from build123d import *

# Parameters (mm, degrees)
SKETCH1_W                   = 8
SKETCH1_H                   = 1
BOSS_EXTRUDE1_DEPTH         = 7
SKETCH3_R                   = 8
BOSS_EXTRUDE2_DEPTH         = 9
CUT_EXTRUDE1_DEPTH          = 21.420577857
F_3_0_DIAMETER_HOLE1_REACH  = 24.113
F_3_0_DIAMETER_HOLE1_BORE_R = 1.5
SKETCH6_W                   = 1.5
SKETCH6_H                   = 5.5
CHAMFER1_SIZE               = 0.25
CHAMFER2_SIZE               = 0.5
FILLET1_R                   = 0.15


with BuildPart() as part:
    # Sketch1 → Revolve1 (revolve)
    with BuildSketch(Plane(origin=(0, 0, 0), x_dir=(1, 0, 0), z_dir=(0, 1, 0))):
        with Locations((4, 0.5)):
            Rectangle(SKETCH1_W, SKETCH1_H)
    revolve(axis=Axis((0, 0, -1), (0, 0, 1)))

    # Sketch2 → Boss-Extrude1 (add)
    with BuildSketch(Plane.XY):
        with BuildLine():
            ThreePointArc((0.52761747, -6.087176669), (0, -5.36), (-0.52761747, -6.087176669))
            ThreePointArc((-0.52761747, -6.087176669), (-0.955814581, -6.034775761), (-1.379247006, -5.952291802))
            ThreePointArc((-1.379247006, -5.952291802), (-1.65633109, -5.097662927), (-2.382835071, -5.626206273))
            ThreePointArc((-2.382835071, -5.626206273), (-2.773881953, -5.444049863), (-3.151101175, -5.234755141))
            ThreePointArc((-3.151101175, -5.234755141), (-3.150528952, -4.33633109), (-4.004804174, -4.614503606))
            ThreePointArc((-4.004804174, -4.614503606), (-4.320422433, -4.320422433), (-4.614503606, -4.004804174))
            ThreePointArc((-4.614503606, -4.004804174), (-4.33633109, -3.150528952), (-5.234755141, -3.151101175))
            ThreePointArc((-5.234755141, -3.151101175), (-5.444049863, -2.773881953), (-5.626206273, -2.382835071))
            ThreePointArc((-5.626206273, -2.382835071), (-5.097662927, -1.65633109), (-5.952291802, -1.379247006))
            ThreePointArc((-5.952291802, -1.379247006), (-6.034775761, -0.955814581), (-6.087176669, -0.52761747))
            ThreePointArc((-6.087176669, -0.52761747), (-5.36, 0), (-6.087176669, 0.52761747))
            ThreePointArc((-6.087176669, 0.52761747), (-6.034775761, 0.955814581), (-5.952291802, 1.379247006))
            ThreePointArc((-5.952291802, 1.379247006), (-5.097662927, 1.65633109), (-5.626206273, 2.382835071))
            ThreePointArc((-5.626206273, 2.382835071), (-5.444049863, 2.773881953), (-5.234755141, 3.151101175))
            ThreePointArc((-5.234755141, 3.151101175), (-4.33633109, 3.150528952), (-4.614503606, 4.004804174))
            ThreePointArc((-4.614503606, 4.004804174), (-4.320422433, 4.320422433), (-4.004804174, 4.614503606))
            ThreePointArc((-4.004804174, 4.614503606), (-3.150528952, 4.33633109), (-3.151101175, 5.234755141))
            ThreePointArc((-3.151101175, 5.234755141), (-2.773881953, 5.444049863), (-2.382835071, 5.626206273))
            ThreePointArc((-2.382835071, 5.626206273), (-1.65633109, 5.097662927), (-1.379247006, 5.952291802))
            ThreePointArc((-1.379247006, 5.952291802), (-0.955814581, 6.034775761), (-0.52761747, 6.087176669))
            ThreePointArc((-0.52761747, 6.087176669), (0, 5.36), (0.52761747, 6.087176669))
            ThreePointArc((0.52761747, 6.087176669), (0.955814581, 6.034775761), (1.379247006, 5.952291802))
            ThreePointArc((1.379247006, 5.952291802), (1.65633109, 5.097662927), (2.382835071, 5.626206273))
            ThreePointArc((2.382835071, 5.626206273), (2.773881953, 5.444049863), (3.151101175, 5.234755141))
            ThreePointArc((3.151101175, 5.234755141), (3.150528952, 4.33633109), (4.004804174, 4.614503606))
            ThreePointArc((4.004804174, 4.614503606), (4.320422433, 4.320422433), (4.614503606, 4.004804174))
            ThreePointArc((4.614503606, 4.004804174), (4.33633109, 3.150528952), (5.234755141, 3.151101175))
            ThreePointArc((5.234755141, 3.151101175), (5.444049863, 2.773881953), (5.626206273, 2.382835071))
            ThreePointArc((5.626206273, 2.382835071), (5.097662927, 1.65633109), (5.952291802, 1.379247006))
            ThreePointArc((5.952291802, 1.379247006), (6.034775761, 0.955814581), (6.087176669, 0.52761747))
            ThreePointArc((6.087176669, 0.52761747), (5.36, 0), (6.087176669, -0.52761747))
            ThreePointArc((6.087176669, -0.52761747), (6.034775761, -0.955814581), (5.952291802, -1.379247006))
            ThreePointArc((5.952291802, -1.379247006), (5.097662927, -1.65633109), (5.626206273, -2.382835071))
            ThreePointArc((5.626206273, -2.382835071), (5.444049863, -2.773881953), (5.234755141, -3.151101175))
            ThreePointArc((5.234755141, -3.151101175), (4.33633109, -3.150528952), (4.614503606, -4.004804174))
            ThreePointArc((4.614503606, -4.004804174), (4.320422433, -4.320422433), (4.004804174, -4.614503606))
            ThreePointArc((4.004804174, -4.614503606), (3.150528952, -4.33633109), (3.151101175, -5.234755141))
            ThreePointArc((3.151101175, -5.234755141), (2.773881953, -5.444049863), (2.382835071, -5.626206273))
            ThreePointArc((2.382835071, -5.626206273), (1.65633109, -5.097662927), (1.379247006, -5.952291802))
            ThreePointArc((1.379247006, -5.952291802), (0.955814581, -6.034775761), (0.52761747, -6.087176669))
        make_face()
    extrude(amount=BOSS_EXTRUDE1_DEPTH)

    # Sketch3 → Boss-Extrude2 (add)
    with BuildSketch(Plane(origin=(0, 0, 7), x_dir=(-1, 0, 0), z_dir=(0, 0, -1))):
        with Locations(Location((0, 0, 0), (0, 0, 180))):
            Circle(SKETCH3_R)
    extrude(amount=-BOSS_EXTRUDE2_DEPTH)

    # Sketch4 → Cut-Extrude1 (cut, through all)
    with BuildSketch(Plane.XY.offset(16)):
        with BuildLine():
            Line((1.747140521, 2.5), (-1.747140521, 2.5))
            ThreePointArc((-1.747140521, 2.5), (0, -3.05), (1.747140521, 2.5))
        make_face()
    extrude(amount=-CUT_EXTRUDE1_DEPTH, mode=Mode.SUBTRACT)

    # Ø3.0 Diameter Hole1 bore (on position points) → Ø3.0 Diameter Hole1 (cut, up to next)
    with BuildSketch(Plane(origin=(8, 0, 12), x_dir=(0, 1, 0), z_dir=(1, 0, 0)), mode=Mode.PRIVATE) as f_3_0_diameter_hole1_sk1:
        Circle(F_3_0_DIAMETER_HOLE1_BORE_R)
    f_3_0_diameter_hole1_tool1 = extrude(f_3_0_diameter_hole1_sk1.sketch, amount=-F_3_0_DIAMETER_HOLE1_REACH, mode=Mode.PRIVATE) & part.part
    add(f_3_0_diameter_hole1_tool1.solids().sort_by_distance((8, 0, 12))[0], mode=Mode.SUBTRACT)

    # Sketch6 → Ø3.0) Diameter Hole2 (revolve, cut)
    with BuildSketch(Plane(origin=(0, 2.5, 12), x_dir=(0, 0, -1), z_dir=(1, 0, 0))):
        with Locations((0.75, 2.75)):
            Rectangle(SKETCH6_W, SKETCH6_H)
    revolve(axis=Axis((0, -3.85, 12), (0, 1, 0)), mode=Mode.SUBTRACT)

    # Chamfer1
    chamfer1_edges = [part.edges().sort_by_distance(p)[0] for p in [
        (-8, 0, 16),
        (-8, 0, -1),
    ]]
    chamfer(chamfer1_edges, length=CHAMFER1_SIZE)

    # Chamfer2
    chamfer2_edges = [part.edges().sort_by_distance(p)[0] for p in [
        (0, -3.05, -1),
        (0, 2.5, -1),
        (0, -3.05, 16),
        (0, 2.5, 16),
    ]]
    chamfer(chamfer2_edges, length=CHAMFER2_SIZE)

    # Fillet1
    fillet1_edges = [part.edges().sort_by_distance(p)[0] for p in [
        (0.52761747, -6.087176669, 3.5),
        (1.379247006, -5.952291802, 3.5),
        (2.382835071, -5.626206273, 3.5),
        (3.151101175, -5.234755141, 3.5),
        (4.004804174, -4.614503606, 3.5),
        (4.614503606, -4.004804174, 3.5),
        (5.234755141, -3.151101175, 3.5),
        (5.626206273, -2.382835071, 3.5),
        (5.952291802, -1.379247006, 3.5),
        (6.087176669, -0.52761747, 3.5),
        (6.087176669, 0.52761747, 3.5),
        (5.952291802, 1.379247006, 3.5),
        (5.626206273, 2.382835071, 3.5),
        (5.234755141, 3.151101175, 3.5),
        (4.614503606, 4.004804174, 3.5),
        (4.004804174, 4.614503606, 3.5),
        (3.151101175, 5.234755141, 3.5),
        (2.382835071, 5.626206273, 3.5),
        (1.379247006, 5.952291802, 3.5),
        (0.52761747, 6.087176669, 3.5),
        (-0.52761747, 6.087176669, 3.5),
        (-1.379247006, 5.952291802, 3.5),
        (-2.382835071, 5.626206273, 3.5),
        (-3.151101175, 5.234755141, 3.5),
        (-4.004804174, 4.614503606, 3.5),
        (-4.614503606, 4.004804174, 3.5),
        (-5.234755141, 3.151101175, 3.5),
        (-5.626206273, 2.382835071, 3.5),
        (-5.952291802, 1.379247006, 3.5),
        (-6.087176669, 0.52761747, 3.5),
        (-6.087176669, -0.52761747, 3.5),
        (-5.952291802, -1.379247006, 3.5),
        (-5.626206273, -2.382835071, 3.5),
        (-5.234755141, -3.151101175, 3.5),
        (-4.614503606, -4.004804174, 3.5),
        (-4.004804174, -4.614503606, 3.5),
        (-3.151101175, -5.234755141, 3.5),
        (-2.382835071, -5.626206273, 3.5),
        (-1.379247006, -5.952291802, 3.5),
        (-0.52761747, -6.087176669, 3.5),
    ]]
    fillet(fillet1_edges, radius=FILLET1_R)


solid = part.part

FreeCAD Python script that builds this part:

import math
import FreeCAD as App
import Part
import Sketcher


def edges_at(feature, points):
    """Names of the edges that pass closest to the given points."""
    edges = feature.Shape.Edges
    near = lambda p: min(range(len(edges)), key=lambda i: edges[i].distToShape(Part.Vertex(*p))[0])
    return sorted({f"Edge{near(p) + 1}" for p in points})

doc = App.newDocument("Part")
body = doc.addObject("PartDesign::Body", "Body")

# Sketch on XZ plane
sketch1 = doc.addObject("Sketcher::SketchObject", "Sketch")
body.addObject(sketch1)
sketch1.AttachmentSupport = (doc.XZ_Plane, [""])
sketch1.MapMode = "FlatFace"
sketch1.addGeometry([
    Part.LineSegment(App.Vector(0, -1, 0), App.Vector(0, 0, 0)),
    Part.LineSegment(App.Vector(0, 0, 0), App.Vector(8, 0, 0)),
    Part.LineSegment(App.Vector(8, 0, 0), App.Vector(8, -1, 0)),
    Part.LineSegment(App.Vector(8, -1, 0), App.Vector(0, -1, 0)),
], False)
sketch1.addConstraint([
    Sketcher.Constraint("Coincident", 0, 2, 1, 1),
    Sketcher.Constraint("Coincident", 1, 2, 2, 1),
    Sketcher.Constraint("Coincident", 2, 2, 3, 1),
    Sketcher.Constraint("Coincident", 3, 2, 0, 1),
    Sketcher.Constraint("Vertical", 0),
    Sketcher.Constraint("Horizontal", 1),
    Sketcher.Constraint("Vertical", 2),
    Sketcher.Constraint("Horizontal", 3),
    Sketcher.Constraint("Coincident", 0, 2, -1, 1),
    Sketcher.Constraint("DistanceX", 1, 1, 1, 2, 8.0),
    Sketcher.Constraint("DistanceY", 0, 1, 0, 2, 1.0),
])
revolution = doc.addObject("PartDesign::Revolution", "Revolution")
body.addObject(revolution)
revolution.Profile = sketch1
revolution.ReferenceAxis = (sketch1, ["V_Axis"])
revolution.Angle = 360

# Sketch on XY plane
sketch2 = doc.addObject("Sketcher::SketchObject", "Sketch001")
body.addObject(sketch2)
sketch2.AttachmentSupport = (doc.XY_Plane, [""])
sketch2.MapMode = "FlatFace"
sketch2.addGeometry([
    Part.ArcOfCircle(Part.Circle(App.Vector(0, -5.9, 0), App.Vector(0, 0, 1), 0.6), math.radians(-18), math.radians(198)),  # 0
    Part.ArcOfCircle(Part.Circle(App.Vector(0, 0, 0), App.Vector(0, 0, 1), 6.1), math.radians(-85.05), math.radians(-76.95)),  # 1
    Part.ArcOfCircle(Part.Circle(App.Vector(1.8, -5.6, 0), App.Vector(0, 0, 1), 0.6), math.radians(0), math.radians(216)),  # 2
    Part.ArcOfCircle(Part.Circle(App.Vector(0, 0, 0), App.Vector(0, 0, 1), 6.1), math.radians(-67.05), math.radians(-58.95)),  # 3
    Part.ArcOfCircle(Part.Circle(App.Vector(3.5, -4.8, 0), App.Vector(0, 0, 1), 0.6), math.radians(18), math.radians(234)),  # 4
    Part.ArcOfCircle(Part.Circle(App.Vector(0, 0, 0), App.Vector(0, 0, 1), 6.1), math.radians(-49.05), math.radians(-40.95)),  # 5
    Part.ArcOfCircle(Part.Circle(App.Vector(4.8, -3.5, 0), App.Vector(0, 0, 1), 0.6), math.radians(36), math.radians(252)),  # 6
    Part.ArcOfCircle(Part.Circle(App.Vector(0, 0, 0), App.Vector(0, 0, 1), 6.1), math.radians(-31.05), math.radians(-22.95)),  # 7
    Part.ArcOfCircle(Part.Circle(App.Vector(5.6, -1.8, 0), App.Vector(0, 0, 1), 0.6), math.radians(54), math.radians(270)),  # 8
    Part.ArcOfCircle(Part.Circle(App.Vector(0, 0, 0), App.Vector(0, 0, 1), 6.1), math.radians(-13.05), math.radians(-4.95)),  # 9
    Part.ArcOfCircle(Part.Circle(App.Vector(5.9, 0, 0), App.Vector(0, 0, 1), 0.6), math.radians(72), math.radians(288)),  # 10
    Part.ArcOfCircle(Part.Circle(App.Vector(0, 0, 0), App.Vector(0, 0, 1), 6.1), math.radians(4.95), math.radians(13.05)),  # 11
    Part.ArcOfCircle(Part.Circle(App.Vector(5.6, 1.8, 0), App.Vector(0, 0, 1), 0.6), math.radians(90), math.radians(306)),  # 12
    Part.ArcOfCircle(Part.Circle(App.Vector(0, 0, 0), App.Vector(0, 0, 1), 6.1), math.radians(22.95), math.radians(31.05)),  # 13
    Part.ArcOfCircle(Part.Circle(App.Vector(4.8, 3.5, 0), App.Vector(0, 0, 1), 0.6), math.radians(108), math.radians(324)),  # 14
    Part.ArcOfCircle(Part.Circle(App.Vector(0, 0, 0), App.Vector(0, 0, 1), 6.1), math.radians(40.95), math.radians(49.05)),  # 15
    Part.ArcOfCircle(Part.Circle(App.Vector(3.5, 4.8, 0), App.Vector(0, 0, 1), 0.6), math.radians(126), math.radians(342)),  # 16
    Part.ArcOfCircle(Part.Circle(App.Vector(0, 0, 0), App.Vector(0, 0, 1), 6.1), math.radians(58.95), math.radians(67.05)),  # 17
    Part.ArcOfCircle(Part.Circle(App.Vector(1.8, 5.6, 0), App.Vector(0, 0, 1), 0.6), math.radians(144), math.radians(360)),  # 18
    Part.ArcOfCircle(Part.Circle(App.Vector(0, 0, 0), App.Vector(0, 0, 1), 6.1), math.radians(76.95), math.radians(85.05)),  # 19
    Part.ArcOfCircle(Part.Circle(App.Vector(0, 5.9, 0), App.Vector(0, 0, 1), 0.6), math.radians(162), math.radians(378)),  # 20
    Part.ArcOfCircle(Part.Circle(App.Vector(0, 0, 0), App.Vector(0, 0, 1), 6.1), math.radians(94.95), math.radians(103.05)),  # 21
    Part.ArcOfCircle(Part.Circle(App.Vector(-1.8, 5.6, 0), App.Vector(0, 0, 1), 0.6), math.radians(180), math.radians(396)),  # 22
    Part.ArcOfCircle(Part.Circle(App.Vector(0, 0, 0), App.Vector(0, 0, 1), 6.1), math.radians(112.95), math.radians(121.05)),  # 23
    Part.ArcOfCircle(Part.Circle(App.Vector(-3.5, 4.8, 0), App.Vector(0, 0, 1), 0.6), math.radians(-162), math.radians(54)),  # 24
    Part.ArcOfCircle(Part.Circle(App.Vector(0, 0, 0), App.Vector(0, 0, 1), 6.1), math.radians(130.95), math.radians(139.05)),  # 25
    Part.ArcOfCircle(Part.Circle(App.Vector(-4.8, 3.5, 0), App.Vector(0, 0, 1), 0.6), math.radians(-144), math.radians(72)),  # 26
    Part.ArcOfCircle(Part.Circle(App.Vector(0, 0, 0), App.Vector(0, 0, 1), 6.1), math.radians(148.95), math.radians(157.05)),  # 27
    Part.ArcOfCircle(Part.Circle(App.Vector(-5.6, 1.8, 0), App.Vector(0, 0, 1), 0.6), math.radians(-126), math.radians(90)),  # 28
    Part.ArcOfCircle(Part.Circle(App.Vector(0, 0, 0), App.Vector(0, 0, 1), 6.1), math.radians(166.95), math.radians(175.05)),  # 29
    Part.ArcOfCircle(Part.Circle(App.Vector(-5.9, 0, 0), App.Vector(0, 0, 1), 0.6), math.radians(-108), math.radians(108)),  # 30
    Part.ArcOfCircle(Part.Circle(App.Vector(0, 0, 0), App.Vector(0, 0, 1), 6.1), math.radians(-175.05), math.radians(-166.95)),  # 31
    Part.ArcOfCircle(Part.Circle(App.Vector(-5.6, -1.8, 0), App.Vector(0, 0, 1), 0.6), math.radians(-90), math.radians(126)),  # 32
    Part.ArcOfCircle(Part.Circle(App.Vector(0, 0, 0), App.Vector(0, 0, 1), 6.1), math.radians(-157.05), math.radians(-148.95)),  # 33
    Part.ArcOfCircle(Part.Circle(App.Vector(-4.8, -3.5, 0), App.Vector(0, 0, 1), 0.6), math.radians(-72), math.radians(144)),  # 34
    Part.ArcOfCircle(Part.Circle(App.Vector(0, 0, 0), App.Vector(0, 0, 1), 6.1), math.radians(-139.05), math.radians(-130.95)),  # 35
    Part.ArcOfCircle(Part.Circle(App.Vector(-3.5, -4.8, 0), App.Vector(0, 0, 1), 0.6), math.radians(-54), math.radians(162)),  # 36
    Part.ArcOfCircle(Part.Circle(App.Vector(0, 0, 0), App.Vector(0, 0, 1), 6.1), math.radians(-121.05), math.radians(-112.95)),  # 37
    Part.ArcOfCircle(Part.Circle(App.Vector(-1.8, -5.6, 0), App.Vector(0, 0, 1), 0.6), math.radians(-36), math.radians(180)),  # 38
    Part.ArcOfCircle(Part.Circle(App.Vector(0, 0, 0), App.Vector(0, 0, 1), 6.1), math.radians(-103.05), math.radians(-94.95)),  # 39
], False)
sketch2.addConstraint([
    Sketcher.Constraint("Coincident", 0, 1, 1, 1),
    Sketcher.Constraint("Coincident", 1, 2, 2, 2),
    Sketcher.Constraint("Coincident", 2, 1, 3, 1),
    Sketcher.Constraint("Coincident", 3, 2, 4, 2),
    Sketcher.Constraint("Coincident", 4, 1, 5, 1),
    Sketcher.Constraint("Coincident", 5, 2, 6, 2),
    Sketcher.Constraint("Coincident", 6, 1, 7, 1),
    Sketcher.Constraint("Coincident", 7, 2, 8, 2),
    Sketcher.Constraint("Coincident", 8, 1, 9, 1),
    Sketcher.Constraint("Coincident", 9, 2, 10, 2),
    Sketcher.Constraint("Coincident", 10, 1, 11, 1),
    Sketcher.Constraint("Coincident", 11, 2, 12, 2),
    Sketcher.Constraint("Coincident", 12, 1, 13, 1),
    Sketcher.Constraint("Coincident", 13, 2, 14, 2),
    Sketcher.Constraint("Coincident", 14, 1, 15, 1),
    Sketcher.Constraint("Coincident", 15, 2, 16, 2),
    Sketcher.Constraint("Coincident", 16, 1, 17, 1),
    Sketcher.Constraint("Coincident", 17, 2, 18, 2),
    Sketcher.Constraint("Coincident", 18, 1, 19, 1),
    Sketcher.Constraint("Coincident", 19, 2, 20, 2),
    Sketcher.Constraint("Coincident", 20, 1, 21, 1),
    Sketcher.Constraint("Coincident", 21, 2, 22, 2),
    Sketcher.Constraint("Coincident", 22, 1, 23, 1),
    Sketcher.Constraint("Coincident", 23, 2, 24, 2),
    Sketcher.Constraint("Coincident", 24, 1, 25, 1),
    Sketcher.Constraint("Coincident", 25, 2, 26, 2),
    Sketcher.Constraint("Coincident", 26, 1, 27, 1),
    Sketcher.Constraint("Coincident", 27, 2, 28, 2),
    Sketcher.Constraint("Coincident", 28, 1, 29, 1),
    Sketcher.Constraint("Coincident", 29, 2, 30, 2),
    Sketcher.Constraint("Coincident", 30, 1, 31, 1),
    Sketcher.Constraint("Coincident", 31, 2, 32, 2),
    Sketcher.Constraint("Coincident", 32, 1, 33, 1),
    Sketcher.Constraint("Coincident", 33, 2, 34, 2),
    Sketcher.Constraint("Coincident", 34, 1, 35, 1),
    Sketcher.Constraint("Coincident", 35, 2, 36, 2),
    Sketcher.Constraint("Coincident", 36, 1, 37, 1),
    Sketcher.Constraint("Coincident", 37, 2, 38, 2),
    Sketcher.Constraint("Coincident", 38, 1, 39, 1),
    Sketcher.Constraint("Coincident", 39, 2, 0, 2),
    Sketcher.Constraint("Coincident", 1, 3, -1, 1),
    Sketcher.Constraint("Coincident", 3, 3, -1, 1),
    Sketcher.Constraint("Coincident", 5, 3, -1, 1),
    Sketcher.Constraint("Coincident", 7, 3, -1, 1),
    Sketcher.Constraint("Coincident", 9, 3, -1, 1),
    Sketcher.Constraint("Coincident", 11, 3, -1, 1),
    Sketcher.Constraint("Coincident", 13, 3, -1, 1),
    Sketcher.Constraint("Coincident", 15, 3, -1, 1),
    Sketcher.Constraint("Coincident", 17, 3, -1, 1),
    Sketcher.Constraint("Coincident", 19, 3, -1, 1),
    Sketcher.Constraint("Coincident", 21, 3, -1, 1),
    Sketcher.Constraint("Coincident", 23, 3, -1, 1),
    Sketcher.Constraint("Coincident", 25, 3, -1, 1),
    Sketcher.Constraint("Coincident", 27, 3, -1, 1),
    Sketcher.Constraint("Coincident", 29, 3, -1, 1),
    Sketcher.Constraint("Coincident", 31, 3, -1, 1),
    Sketcher.Constraint("Coincident", 33, 3, -1, 1),
    Sketcher.Constraint("Coincident", 35, 3, -1, 1),
    Sketcher.Constraint("Coincident", 37, 3, -1, 1),
    Sketcher.Constraint("Coincident", 39, 3, -1, 1),
    Sketcher.Constraint("Equal", 0, 2),
    Sketcher.Constraint("Equal", 1, 3),
    Sketcher.Constraint("Equal", 2, 4),
    Sketcher.Constraint("Equal", 3, 5),
    Sketcher.Constraint("Equal", 4, 6),
    Sketcher.Constraint("Equal", 5, 7),
    Sketcher.Constraint("Equal", 6, 8),
    Sketcher.Constraint("Equal", 7, 9),
    Sketcher.Constraint("Equal", 8, 10),
    Sketcher.Constraint("Equal", 9, 11),
    Sketcher.Constraint("Equal", 10, 12),
    Sketcher.Constraint("Equal", 11, 13),
    Sketcher.Constraint("Equal", 12, 14),
    Sketcher.Constraint("Equal", 13, 15),
    Sketcher.Constraint("Equal", 14, 16),
    Sketcher.Constraint("Equal", 15, 17),
    Sketcher.Constraint("Equal", 16, 18),
    Sketcher.Constraint("Equal", 17, 19),
    Sketcher.Constraint("Equal", 18, 20),
    Sketcher.Constraint("Equal", 19, 21),
    Sketcher.Constraint("Equal", 20, 22),
    Sketcher.Constraint("Equal", 21, 23),
    Sketcher.Constraint("Equal", 22, 24),
    Sketcher.Constraint("Equal", 23, 25),
    Sketcher.Constraint("Equal", 24, 26),
    Sketcher.Constraint("Equal", 25, 27),
    Sketcher.Constraint("Equal", 26, 28),
    Sketcher.Constraint("Equal", 27, 29),
    Sketcher.Constraint("Equal", 28, 30),
    Sketcher.Constraint("Equal", 29, 31),
    Sketcher.Constraint("Equal", 30, 32),
    Sketcher.Constraint("Equal", 31, 33),
    Sketcher.Constraint("Equal", 32, 34),
    Sketcher.Constraint("Equal", 33, 35),
    Sketcher.Constraint("Equal", 34, 36),
    Sketcher.Constraint("Equal", 35, 37),
    Sketcher.Constraint("Equal", 36, 38),
    Sketcher.Constraint("Equal", 37, 39),
    Sketcher.Constraint("Symmetric", 0, 3, 20, 3, -1, 1),
    Sketcher.Constraint("Symmetric", 2, 3, 22, 3, -1, 1),
    Sketcher.Constraint("Symmetric", 4, 3, 24, 3, -1, 1),
    Sketcher.Constraint("Symmetric", 6, 3, 26, 3, -1, 1),
    Sketcher.Constraint("Symmetric", 8, 3, 28, 3, -1, 1),
    Sketcher.Constraint("Symmetric", 10, 3, 30, 3, -1, 1),
    Sketcher.Constraint("Symmetric", 12, 3, 32, 3, -1, 1),
    Sketcher.Constraint("Symmetric", 14, 3, 34, 3, -1, 1),
    Sketcher.Constraint("Symmetric", 16, 3, 36, 3, -1, 1),
    Sketcher.Constraint("Symmetric", 18, 3, 38, 3, -1, 1),
    Sketcher.Constraint("Symmetric", 18, 3, 22, 3, -2),
    Sketcher.Constraint("Symmetric", 16, 3, 24, 3, -2),
    Sketcher.Constraint("Symmetric", 14, 3, 26, 3, -2),
    Sketcher.Constraint("Symmetric", 12, 3, 28, 3, -2),
    Sketcher.Constraint("PointOnObject", 0, 3, -2),
    Sketcher.Constraint("PointOnObject", 10, 3, -1),
    Sketcher.Constraint("Radius", 1, 6.11),
    Sketcher.Constraint("Radius", 0, 0.555),
    Sketcher.Constraint("DistanceY", 0, 3, -1, 1, 5.915),
    Sketcher.Constraint("DistanceX", -1, 1, 10, 3, 5.915),
    Sketcher.Constraint("DistanceY", 2, 3, -1, 1, 5.625499),
    Sketcher.Constraint("DistanceX", -1, 1, 8, 3, 5.625499),
    Sketcher.Constraint("DistanceX", -1, 1, 3, 2, 3.151101),
    Sketcher.Constraint("DistanceY", 6, 1, -1, 1, 3.151101),
    Sketcher.Constraint("DistanceX", -1, 1, 4, 3, 3.47675),
    Sketcher.Constraint("DistanceY", 6, 3, -1, 1, 3.47675),
    Sketcher.Constraint("DistanceY", 1, 2, -1, 1, 5.952292),
    Sketcher.Constraint("DistanceX", -1, 1, 8, 1, 5.952292),
])
pad1 = doc.addObject("PartDesign::Pad", "Pad")
body.addObject(pad1)
pad1.Profile = sketch2
pad1.Length = 7

# Sketch on XY plane
sketch3 = doc.addObject("Sketcher::SketchObject", "Sketch002")
body.addObject(sketch3)
sketch3.AttachmentSupport = (doc.XY_Plane, [""])
sketch3.MapMode = "FlatFace"
sketch3.AttachmentOffset = App.Placement(App.Vector(0, 0, 7), App.Rotation())
sketch3.addGeometry(Part.Circle(App.Vector(0, 0, 0), App.Vector(0, 0, 1), 8), False)
sketch3.addConstraint([
    Sketcher.Constraint("Coincident", 0, 3, -1, 1),
    Sketcher.Constraint("Diameter", 0, 16.0),
])
pad2 = doc.addObject("PartDesign::Pad", "Pad001")
body.addObject(pad2)
pad2.Profile = sketch3
pad2.Length = 9

# Sketch on XY plane
sketch4 = doc.addObject("Sketcher::SketchObject", "Sketch003")
body.addObject(sketch4)
sketch4.AttachmentSupport = (doc.XY_Plane, [""])
sketch4.MapMode = "FlatFace"
sketch4.AttachmentOffset = App.Placement(App.Vector(0, 0, 16), App.Rotation())
sketch4.addGeometry([
    Part.LineSegment(App.Vector(1.7, 2.5, 0), App.Vector(-1.7, 2.5, 0)),
    Part.ArcOfCircle(Part.Circle(App.Vector(0, 0, 0), App.Vector(0, 0, 1), 3), math.radians(125), math.radians(415)),
], False)
sketch4.addConstraint([
    Sketcher.Constraint("Coincident", 0, 1, 1, 2),
    Sketcher.Constraint("Coincident", 1, 1, 0, 2),
    Sketcher.Constraint("Horizontal", 0),
    Sketcher.Constraint("Coincident", 1, 3, -1, 1),
    Sketcher.Constraint("Radius", 1, 3.05),
    Sketcher.Constraint("DistanceY", -1, 1, 0, 1, 2.5),
])
pocket1 = doc.addObject("PartDesign::Pocket", "Pocket")
body.addObject(pocket1)
pocket1.Profile = sketch4
pocket1.Type = "ThroughAll"

# Sketch on YZ plane
sketch5 = doc.addObject("Sketcher::SketchObject", "Sketch004")
body.addObject(sketch5)
sketch5.AttachmentSupport = (doc.YZ_Plane, [""])
sketch5.MapMode = "FlatFace"
sketch5.AttachmentOffset = App.Placement(App.Vector(0, 0, 8), App.Rotation())
sketch5.addGeometry(Part.Circle(App.Vector(0, 12, 0), App.Vector(0, 0, 1), 1.5), False)
sketch5.addConstraint([
    Sketcher.Constraint("PointOnObject", 0, 3, -2),
    Sketcher.Constraint("Diameter", 0, 3.0),
    Sketcher.Constraint("DistanceY", -1, 1, 0, 3, 12.0),
])
pocket2 = doc.addObject("PartDesign::Pocket", "Pocket001")
body.addObject(pocket2)
pocket2.Profile = sketch5
pocket2.Type = "UpToFirst"

# Sketch on YZ plane
sketch6 = doc.addObject("Sketcher::SketchObject", "Sketch005")
body.addObject(sketch6)
sketch6.AttachmentSupport = (doc.YZ_Plane, [""])
sketch6.MapMode = "FlatFace"
sketch6.addGeometry([
    Part.LineSegment(App.Vector(8, 12, 0), App.Vector(2.5, 12, 0)),
    Part.LineSegment(App.Vector(2.5, 12, 0), App.Vector(2.5, 10.5, 0)),
    Part.LineSegment(App.Vector(2.5, 10.5, 0), App.Vector(8, 10.5, 0)),
    Part.LineSegment(App.Vector(8, 10.5, 0), App.Vector(8, 12, 0)),
], False)
sketch6.addGeometry(Part.LineSegment(App.Vector(2.5, 12, 0), App.Vector(8, 12, 0)), True)  # axis
sketch6.addConstraint([
    Sketcher.Constraint("Coincident", 0, 2, 1, 1),
    Sketcher.Constraint("Coincident", 1, 2, 2, 1),
    Sketcher.Constraint("Coincident", 2, 2, 3, 1),
    Sketcher.Constraint("Coincident", 3, 2, 0, 1),
    Sketcher.Constraint("Horizontal", 0),
    Sketcher.Constraint("Vertical", 1),
    Sketcher.Constraint("Horizontal", 2),
    Sketcher.Constraint("Vertical", 3),
    Sketcher.Constraint("Horizontal", 4),
    Sketcher.Constraint("Coincident", 4, 1, 0, 2),
    Sketcher.Constraint("Vertical", 2, 2, 4, 2),
    Sketcher.Constraint("DistanceX", 0, 2, 0, 1, 5.5),
    Sketcher.Constraint("DistanceY", 1, 2, 1, 1, 1.5),
    Sketcher.Constraint("DistanceY", -1, 1, 0, 2, 12.0),
    Sketcher.Constraint("DistanceX", -1, 1, 2, 2, 8.0),
])
groove = doc.addObject("PartDesign::Groove", "Groove")
body.addObject(groove)
groove.Profile = sketch6
groove.ReferenceAxis = (sketch6, ["Axis0"])
groove.Angle = 360
doc.recompute()

chamfer = doc.addObject("PartDesign::Chamfer", "Chamfer")
body.addObject(chamfer)
chamfer.Base = (groove, edges_at(groove, [(-8, 0, 16), (-8, 0, -1)]))
chamfer.Size = 0.25
doc.recompute()

chamfer2 = doc.addObject("PartDesign::Chamfer", "Chamfer001")
body.addObject(chamfer2)
chamfer2.Base = (chamfer, edges_at(chamfer, [
    (0, -3.05, -1),
    (0, 2.5, -1),
    (0, -3.05, 16),
    (0, 2.5, 16),
]))
chamfer2.Size = 0.5
doc.recompute()

fillet = doc.addObject("PartDesign::Fillet", "Fillet")
body.addObject(fillet)
fillet.Base = (chamfer2, edges_at(chamfer2, [
    (0.528, -6.087, 3.5),
    (1.379, -5.952, 3.5),
    (2.383, -5.626, 3.5),
    (3.151, -5.235, 3.5),
    (4.005, -4.615, 3.5),
    (4.615, -4.005, 3.5),
    (5.235, -3.151, 3.5),
    (5.626, -2.383, 3.5),
    (5.952, -1.379, 3.5),
    (6.087, -0.528, 3.5),
    (6.087, 0.528, 3.5),
    (5.952, 1.379, 3.5),
    (5.626, 2.383, 3.5),
    (5.235, 3.151, 3.5),
    (4.615, 4.005, 3.5),
    (4.005, 4.615, 3.5),
    (3.151, 5.235, 3.5),
    (2.383, 5.626, 3.5),
    (1.379, 5.952, 3.5),
    (0.528, 6.087, 3.5),
    (-0.528, 6.087, 3.5),
    (-1.379, 5.952, 3.5),
    (-2.383, 5.626, 3.5),
    (-3.151, 5.235, 3.5),
    (-4.005, 4.615, 3.5),
    (-4.615, 4.005, 3.5),
    (-5.235, 3.151, 3.5),
    (-5.626, 2.383, 3.5),
    (-5.952, 1.379, 3.5),
    (-6.087, 0.528, 3.5),
    (-6.087, -0.528, 3.5),
    (-5.952, -1.379, 3.5),
    (-5.626, -2.383, 3.5),
    (-5.235, -3.151, 3.5),
    (-4.615, -4.005, 3.5),
    (-4.005, -4.615, 3.5),
    (-3.151, -5.235, 3.5),
    (-2.383, -5.626, 3.5),
    (-1.379, -5.952, 3.5),
    (-0.528, -6.087, 3.5),
]))
fillet.Radius = 0.15

doc.recompute()
